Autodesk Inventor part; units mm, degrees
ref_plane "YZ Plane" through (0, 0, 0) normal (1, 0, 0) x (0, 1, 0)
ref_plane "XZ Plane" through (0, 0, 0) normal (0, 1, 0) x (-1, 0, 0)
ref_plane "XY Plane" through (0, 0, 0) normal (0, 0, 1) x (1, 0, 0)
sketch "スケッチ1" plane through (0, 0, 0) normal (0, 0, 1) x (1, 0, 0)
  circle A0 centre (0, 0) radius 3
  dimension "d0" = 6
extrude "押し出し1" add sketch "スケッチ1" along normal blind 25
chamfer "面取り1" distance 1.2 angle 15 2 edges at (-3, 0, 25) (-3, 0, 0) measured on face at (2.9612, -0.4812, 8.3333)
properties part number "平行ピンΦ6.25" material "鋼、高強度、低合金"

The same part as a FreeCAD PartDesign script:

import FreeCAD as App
import Part
import Sketcher

V = App.Vector


def edges_at(feature, points):
    """Names of the edges that pass closest to the given points."""
    edges = feature.Shape.Edges
    near = lambda p: min(range(len(edges)), key=lambda i: edges[i].distToShape(Part.Vertex(*p))[0])
    return sorted({f"Edge{near(p) + 1}" for p in points})

doc = App.newDocument("Part")
body = doc.addObject("PartDesign::Body", "Body")

# Sketch on XY plane
sketch1 = doc.addObject("Sketcher::SketchObject", "Sketch")
body.addObject(sketch1)
sketch1.AttachmentSupport = (doc.XY_Plane, [""])
sketch1.MapMode = "FlatFace"
sketch1.addGeometry(Part.Circle(V(0, 0, 0), V(0, 0, 1), 3), False)
sketch1.addConstraint([
    Sketcher.Constraint("Coincident", 0, 3, -1, 1),
    Sketcher.Constraint("Diameter", 0, 6.0),
])
pad1 = doc.addObject("PartDesign::Pad", "Pad")
body.addObject(pad1)
pad1.Profile = sketch1
pad1.Length = 25
doc.recompute()

chamfer = doc.addObject("PartDesign::Chamfer", "Chamfer")
body.addObject(chamfer)
chamfer.Base = (pad1, edges_at(pad1, [(-3, 0, 25), (-3, 0, 0)]))
chamfer.ChamferType = "Distance and Angle"
chamfer.Size = 1.2
chamfer.Angle = 15

doc.recompute()
